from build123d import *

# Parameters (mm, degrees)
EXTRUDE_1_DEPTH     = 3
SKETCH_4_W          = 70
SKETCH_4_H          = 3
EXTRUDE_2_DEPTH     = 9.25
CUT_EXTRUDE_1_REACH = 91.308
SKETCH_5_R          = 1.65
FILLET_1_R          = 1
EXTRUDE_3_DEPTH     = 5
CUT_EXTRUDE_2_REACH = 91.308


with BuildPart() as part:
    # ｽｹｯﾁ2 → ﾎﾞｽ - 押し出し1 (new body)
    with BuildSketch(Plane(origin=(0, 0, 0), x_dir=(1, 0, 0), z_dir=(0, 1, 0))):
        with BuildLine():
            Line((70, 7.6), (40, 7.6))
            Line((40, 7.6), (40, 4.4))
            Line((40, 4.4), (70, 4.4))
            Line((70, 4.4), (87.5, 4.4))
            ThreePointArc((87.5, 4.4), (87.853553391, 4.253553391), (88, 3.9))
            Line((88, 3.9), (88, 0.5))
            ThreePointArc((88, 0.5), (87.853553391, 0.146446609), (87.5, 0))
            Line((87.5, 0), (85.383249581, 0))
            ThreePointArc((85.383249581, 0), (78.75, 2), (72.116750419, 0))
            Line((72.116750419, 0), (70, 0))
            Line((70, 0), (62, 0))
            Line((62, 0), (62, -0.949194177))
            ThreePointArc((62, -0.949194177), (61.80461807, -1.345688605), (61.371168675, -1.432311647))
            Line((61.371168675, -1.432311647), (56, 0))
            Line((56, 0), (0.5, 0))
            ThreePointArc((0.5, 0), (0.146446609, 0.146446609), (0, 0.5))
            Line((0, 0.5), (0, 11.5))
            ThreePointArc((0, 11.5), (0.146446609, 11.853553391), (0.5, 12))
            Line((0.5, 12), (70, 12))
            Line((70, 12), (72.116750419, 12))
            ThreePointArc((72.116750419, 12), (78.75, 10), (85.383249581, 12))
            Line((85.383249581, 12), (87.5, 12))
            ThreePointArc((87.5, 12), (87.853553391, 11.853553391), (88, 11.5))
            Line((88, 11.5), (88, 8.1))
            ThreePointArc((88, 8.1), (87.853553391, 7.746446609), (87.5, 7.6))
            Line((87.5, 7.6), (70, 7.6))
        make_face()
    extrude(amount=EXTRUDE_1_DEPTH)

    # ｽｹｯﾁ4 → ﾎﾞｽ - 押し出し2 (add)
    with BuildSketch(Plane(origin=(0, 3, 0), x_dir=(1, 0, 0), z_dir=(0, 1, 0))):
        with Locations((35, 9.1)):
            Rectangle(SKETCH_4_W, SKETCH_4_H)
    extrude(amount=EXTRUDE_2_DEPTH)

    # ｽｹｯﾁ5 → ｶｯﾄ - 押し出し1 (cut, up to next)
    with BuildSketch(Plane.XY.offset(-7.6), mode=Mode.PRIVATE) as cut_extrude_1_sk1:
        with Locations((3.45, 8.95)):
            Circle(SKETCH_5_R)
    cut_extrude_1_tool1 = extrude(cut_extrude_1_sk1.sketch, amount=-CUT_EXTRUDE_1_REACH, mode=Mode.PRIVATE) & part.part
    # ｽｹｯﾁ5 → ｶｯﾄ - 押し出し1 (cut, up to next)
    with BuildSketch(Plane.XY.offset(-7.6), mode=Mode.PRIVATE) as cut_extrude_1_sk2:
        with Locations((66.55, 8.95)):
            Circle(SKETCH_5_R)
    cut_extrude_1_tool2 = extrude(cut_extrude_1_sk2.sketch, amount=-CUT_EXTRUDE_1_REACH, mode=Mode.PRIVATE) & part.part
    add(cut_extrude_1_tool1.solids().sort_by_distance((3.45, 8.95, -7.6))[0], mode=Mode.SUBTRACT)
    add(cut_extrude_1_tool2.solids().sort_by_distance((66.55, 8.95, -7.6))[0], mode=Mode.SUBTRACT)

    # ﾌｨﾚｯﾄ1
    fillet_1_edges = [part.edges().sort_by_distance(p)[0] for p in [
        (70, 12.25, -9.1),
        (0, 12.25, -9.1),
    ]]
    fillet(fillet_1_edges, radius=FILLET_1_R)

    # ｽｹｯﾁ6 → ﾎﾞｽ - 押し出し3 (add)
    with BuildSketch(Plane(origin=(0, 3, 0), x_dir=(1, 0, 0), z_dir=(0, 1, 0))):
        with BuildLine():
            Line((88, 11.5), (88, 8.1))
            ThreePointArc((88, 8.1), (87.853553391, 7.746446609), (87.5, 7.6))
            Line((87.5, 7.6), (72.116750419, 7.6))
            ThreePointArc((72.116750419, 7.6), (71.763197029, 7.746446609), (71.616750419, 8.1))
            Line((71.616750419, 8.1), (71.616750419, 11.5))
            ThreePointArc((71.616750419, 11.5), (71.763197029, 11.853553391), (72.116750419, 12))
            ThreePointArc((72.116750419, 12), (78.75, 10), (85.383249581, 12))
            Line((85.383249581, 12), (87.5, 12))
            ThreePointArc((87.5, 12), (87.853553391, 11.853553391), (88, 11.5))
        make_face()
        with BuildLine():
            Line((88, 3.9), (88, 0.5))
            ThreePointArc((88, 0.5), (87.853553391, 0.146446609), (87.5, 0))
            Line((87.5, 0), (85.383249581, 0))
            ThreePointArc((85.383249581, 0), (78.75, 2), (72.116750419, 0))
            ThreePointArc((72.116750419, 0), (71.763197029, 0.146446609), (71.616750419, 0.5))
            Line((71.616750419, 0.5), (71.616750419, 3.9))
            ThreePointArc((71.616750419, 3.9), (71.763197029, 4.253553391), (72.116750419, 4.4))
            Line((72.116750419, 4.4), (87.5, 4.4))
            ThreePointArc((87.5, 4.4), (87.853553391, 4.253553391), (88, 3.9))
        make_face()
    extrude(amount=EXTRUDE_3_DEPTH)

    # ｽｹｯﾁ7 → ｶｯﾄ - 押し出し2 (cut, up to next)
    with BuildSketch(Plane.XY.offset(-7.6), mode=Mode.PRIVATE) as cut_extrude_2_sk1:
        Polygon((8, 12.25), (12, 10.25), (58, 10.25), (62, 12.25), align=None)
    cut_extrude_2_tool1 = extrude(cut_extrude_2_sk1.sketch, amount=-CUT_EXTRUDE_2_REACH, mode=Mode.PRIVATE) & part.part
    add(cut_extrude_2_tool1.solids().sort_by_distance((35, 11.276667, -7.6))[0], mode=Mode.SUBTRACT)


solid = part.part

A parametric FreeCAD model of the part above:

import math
import FreeCAD as App
import Part
import Sketcher
from FreeCAD import Vector
Q = App.Units.Quantity


def edges_at(feature, points):
    """Names of the edges that pass closest to the given points."""
    edges = feature.Shape.Edges
    near = lambda p: min(range(len(edges)), key=lambda i: edges[i].distToShape(Part.Vertex(*p))[0])
    return sorted({f"Edge{near(p) + 1}" for p in points})


def add_polygon(sketch, points):
    """Adds a closed chain of lines whose ends are joined by coincident constraints."""
    first, n = sketch.GeometryCount, len(points)
    for a, b in zip(points, points[1:] + points[:1]):
        sketch.addGeometry(Part.LineSegment(App.Vector(*a, 0), App.Vector(*b, 0)), False)
    for i in range(n):
        sketch.addConstraint(Sketcher.Constraint("Coincident", first + i, 2, first + (i + 1) % n, 1))

doc = App.newDocument("Part")
body = doc.addObject("PartDesign::Body", "Body")

sketch1 = body.newObject("Sketcher::SketchObject", "Sketch")
sketch1.AttachmentSupport = (doc.getObject("XZ_Plane"), [""])
sketch1.MapMode = "FlatFace"
sketch1.addGeometry([
    Part.LineSegment(Vector(40, -4.4, 0), Vector(40, -7.6, 0)),
    Part.LineSegment(Vector(40, -7.6, 0), Vector(87.5, -7.6, 0)),
    Part.ArcOfCircle(Part.Circle(Vector(87.5, -8.1, 0), Vector(0, 0, 1), 0.5), math.radians(0), math.radians(90)),
    Part.LineSegment(Vector(88, -8.1, 0), Vector(88, -11.5, 0)),
    Part.ArcOfCircle(Part.Circle(Vector(87.5, -11.5, 0), Vector(0, 0, 1), 0.5), math.radians(-90), math.radians(0)),
    Part.LineSegment(Vector(87.5, -12, 0), Vector(85.38, -12, 0)),
    Part.ArcOfCircle(Part.Circle(Vector(78.75, -22, 0), Vector(0, 0, 1), 12), math.radians(56), math.radians(124)),
    Part.LineSegment(Vector(72.12, -12, 0), Vector(0.5, -12, 0)),
    Part.ArcOfCircle(Part.Circle(Vector(0.5, -11.5, 0), Vector(0, 0, 1), 0.5), math.radians(180), math.radians(270)),
    Part.LineSegment(Vector(0, -11.5, 0), Vector(0, -0.5, 0)),
    Part.ArcOfCircle(Part.Circle(Vector(0.5, -0.5, 0), Vector(0, 0, 1), 0.5), math.radians(90), math.radians(180)),
    Part.LineSegment(Vector(0.5, 0, 0), Vector(56, 0, 0)),
    Part.LineSegment(Vector(56, 0, 0), Vector(61.37, 1.43, 0)),
    Part.ArcOfCircle(Part.Circle(Vector(61.5, 0.95, 0), Vector(0, 0, 1), 0.5), math.radians(0), math.radians(105)),
    Part.LineSegment(Vector(62, 0.95, 0), Vector(62, 0, 0)),
    Part.LineSegment(Vector(62, 0, 0), Vector(72.12, 0, 0)),
    Part.ArcOfCircle(Part.Circle(Vector(78.75, 10, 0), Vector(0, 0, 1), 12), math.radians(-124), math.radians(-56)),
    Part.LineSegment(Vector(85.38, 0, 0), Vector(87.5, 0, 0)),
    Part.ArcOfCircle(Part.Circle(Vector(87.5, -0.5, 0), Vector(0, 0, 1), 0.5), math.radians(0), math.radians(90)),
    Part.LineSegment(Vector(88, -0.5, 0), Vector(88, -3.9, 0)),
    Part.ArcOfCircle(Part.Circle(Vector(87.5, -3.9, 0), Vector(0, 0, 1), 0.5), math.radians(-90), math.radians(0)),
    Part.LineSegment(Vector(87.5, -4.4, 0), Vector(40, -4.4, 0)),
], False)
sketch1.addConstraint([
    Sketcher.Constraint("Coincident", 0, 2, 1, 1),
    Sketcher.Constraint("Tangent", 1, 2, 2, 2),
    Sketcher.Constraint("Tangent", 2, 1, 3, 1),
    Sketcher.Constraint("Tangent", 3, 2, 4, 2),
    Sketcher.Constraint("Tangent", 4, 1, 5, 1),
    Sketcher.Constraint("Coincident", 5, 2, 6, 1),
    Sketcher.Constraint("Coincident", 6, 2, 7, 1),
    Sketcher.Constraint("Tangent", 7, 2, 8, 2),
    Sketcher.Constraint("Tangent", 8, 1, 9, 1),
    Sketcher.Constraint("Tangent", 9, 2, 10, 2),
    Sketcher.Constraint("Tangent", 10, 1, 11, 1),
    Sketcher.Constraint("Coincident", 11, 2, 12, 1),
    Sketcher.Constraint("Tangent", 12, 2, 13, 2),
    Sketcher.Constraint("Tangent", 13, 1, 14, 1),
    Sketcher.Constraint("Coincident", 14, 2, 15, 1),
    Sketcher.Constraint("Coincident", 15, 2, 16, 1),
    Sketcher.Constraint("Coincident", 16, 2, 17, 1),
    Sketcher.Constraint("Tangent", 17, 2, 18, 2),
    Sketcher.Constraint("Tangent", 18, 1, 19, 1),
    Sketcher.Constraint("Tangent", 19, 2, 20, 2),
    Sketcher.Constraint("Tangent", 20, 1, 21, 1),
    Sketcher.Constraint("Coincident", 21, 2, 0, 1),
    Sketcher.Constraint("Vertical", 0),
    Sketcher.Constraint("Horizontal", 1),
    Sketcher.Constraint("Vertical", 3),
    Sketcher.Constraint("Horizontal", 5),
    Sketcher.Constraint("Horizontal", 7),
    Sketcher.Constraint("Vertical", 9),
    Sketcher.Constraint("Horizontal", 11),
    Sketcher.Constraint("Vertical", 14),
    Sketcher.Constraint("Horizontal", 15),
    Sketcher.Constraint("Horizontal", 17),
    Sketcher.Constraint("Vertical", 19),
    Sketcher.Constraint("Horizontal", 21),
    Sketcher.Constraint("Equal", 2, 4),
    Sketcher.Constraint("Equal", 4, 8),
    Sketcher.Constraint("Equal", 8, 10),
    Sketcher.Constraint("Equal", 10, 13),
    Sketcher.Constraint("Equal", 6, 16),
    Sketcher.Constraint("Equal", 13, 18),
    Sketcher.Constraint("Equal", 18, 20),
    Sketcher.Constraint("PointOnObject", 8, 1, -2),
    Sketcher.Constraint("PointOnObject", 10, 1, -1),
    Sketcher.Constraint("PointOnObject", 14, 2, -1),
    Sketcher.Constraint("PointOnObject", 16, 2, -1),
    Sketcher.Constraint("Horizontal", 4, 3, 8, 3),
    Sketcher.Constraint("Vertical", 6, 3, 16, 3),
    Sketcher.Constraint("Vertical", 4, 3, 18, 3),
    Sketcher.Constraint("Vertical", 6, 2, 15, 2),
    Sketcher.Constraint("Equal", 3, 19),
    Sketcher.Constraint("Radius", 6, Q("12 mm")),
    Sketcher.Constraint("Radius", 2, Q("0.5 mm")),
    Sketcher.Constraint("DistanceY", 9, 1, 9, 2, Q("11 mm")),
    Sketcher.Constraint("DistanceX", 1, 1, 1, 2, Q("47.5 mm")),
    Sketcher.Constraint("DistanceX", 11, 1, 11, 2, Q("55.5 mm")),
    Sketcher.Constraint("DistanceY", 0, 2, 0, 1, Q("3.2 mm")),
    Sketcher.Constraint("DistanceY", 6, 3, -1, 1, Q("22 mm")),
    Sketcher.Constraint("DistanceX", -1, 1, 0, 2, Q("40 mm")),
    Sketcher.Constraint("DistanceX", -1, 1, 13, 1, Q("62 mm")),
    Sketcher.Constraint("DistanceX", -1, 1, 6, 3, Q("78.75 mm")),
    Sketcher.Constraint("DistanceY", 14, 2, 14, 1, Q("0.949194 mm")),
])
pad1 = body.newObject("PartDesign::Pad", "Pad")
pad1.Profile = sketch1
pad1.Length = 3
pad1.Reversed = True

sketch2 = body.newObject("Sketcher::SketchObject", "Sketch001")
sketch2.AttachmentSupport = (doc.getObject("XZ_Plane"), [""])
sketch2.MapMode = "FlatFace"
sketch2.AttachmentOffset = App.Placement(Vector(0, 0, -3), App.Rotation())
add_polygon(sketch2, [(0, -10.6), (0, -7.6), (70, -7.6), (70, -10.6)])
sketch2.addConstraint([
    Sketcher.Constraint("Vertical", 0),
    Sketcher.Constraint("Horizontal", 1),
    Sketcher.Constraint("Vertical", 2),
    Sketcher.Constraint("Horizontal", 3),
    Sketcher.Constraint("PointOnObject", 0, 2, -2),
    Sketcher.Constraint("DistanceX", 1, 1, 1, 2, Q("70 mm")),
    Sketcher.Constraint("DistanceY", 0, 1, 0, 2, Q("3 mm")),
    Sketcher.Constraint("DistanceY", 0, 2, -1, 1, Q("7.6 mm")),
])
pad2 = body.newObject("PartDesign::Pad", "Pad001")
pad2.Profile = sketch2
pad2.Length = 9.25
pad2.Reversed = True

sketch3 = body.newObject("Sketcher::SketchObject", "Sketch002")
sketch3.AttachmentSupport = (doc.getObject("XY_Plane"), [""])
sketch3.MapMode = "FlatFace"
sketch3.AttachmentOffset = App.Placement(Vector(0, 0, -7.6), App.Rotation())
sketch3.addGeometry(Part.Circle(Vector(3.5, 8.9, 0), Vector(0, 0, 1), 1.6), False)
sketch3.addConstraint([
    Sketcher.Constraint("Diameter", 0, Q("3.3 mm")),
    Sketcher.Constraint("DistanceX", -1, 1, 0, 3, Q("3.45 mm")),
    Sketcher.Constraint("DistanceY", -1, 1, 0, 3, Q("8.95 mm")),
])
pocket1 = body.newObject("PartDesign::Pocket", "Pocket")
pocket1.Profile = sketch3
pocket1.Type = "UpToFirst"

sketch4 = body.newObject("Sketcher::SketchObject", "Sketch003")
sketch4.AttachmentSupport = (doc.getObject("XY_Plane"), [""])
sketch4.MapMode = "FlatFace"
sketch4.AttachmentOffset = App.Placement(Vector(0, 0, -7.6), App.Rotation())
sketch4.addGeometry(Part.Circle(Vector(66.5, 8.9, 0), Vector(0, 0, 1), 1.6), False)
sketch4.addConstraint([
    Sketcher.Constraint("Diameter", 0, Q("3.3 mm")),
    Sketcher.Constraint("DistanceX", -1, 1, 0, 3, Q("66.55 mm")),
    Sketcher.Constraint("DistanceY", -1, 1, 0, 3, Q("8.95 mm")),
])
pocket2 = body.newObject("PartDesign::Pocket", "Pocket001")
pocket2.Profile = sketch4
pocket2.Type = "UpToFirst"
doc.recompute()

fillet = body.newObject("PartDesign::Fillet", "Fillet")
fillet.Base = (pocket2, edges_at(pocket2, [(70, 12.25, -9.1), (0, 12.25, -9.1)]))
fillet.Radius = 1

sketch5 = body.newObject("Sketcher::SketchObject", "Sketch004")
sketch5.AttachmentSupport = (doc.getObject("XZ_Plane"), [""])
sketch5.MapMode = "FlatFace"
sketch5.AttachmentOffset = App.Placement(Vector(0, 0, -3), App.Rotation())
sketch5.addGeometry([
    Part.LineSegment(Vector(88, -8.1, 0), Vector(88, -11.5, 0)),
    Part.ArcOfCircle(Part.Circle(Vector(87.5, -11.5, 0), Vector(0, 0, 1), 0.5), math.radians(-90), math.radians(0)),
    Part.LineSegment(Vector(87.5, -12, 0), Vector(85.38, -12, 0)),
    Part.ArcOfCircle(Part.Circle(Vector(78.75, -22, 0), Vector(0, 0, 1), 12), math.radians(56), math.radians(124)),
    Part.ArcOfCircle(Part.Circle(Vector(72.12, -11.5, 0), Vector(0, 0, 1), 0.5), math.radians(180), math.radians(270)),
    Part.LineSegment(Vector(71.62, -11.5, 0), Vector(71.62, -8.1, 0)),
    Part.ArcOfCircle(Part.Circle(Vector(72.12, -8.1, 0), Vector(0, 0, 1), 0.5), math.radians(90), math.radians(180)),
    Part.LineSegment(Vector(72.12, -7.6, 0), Vector(87.5, -7.6, 0)),
    Part.ArcOfCircle(Part.Circle(Vector(87.5, -8.1, 0), Vector(0, 0, 1), 0.5), math.radians(0), math.radians(90)),
    Part.LineSegment(Vector(88, -0.5, 0), Vector(88, -3.9, 0)),
    Part.ArcOfCircle(Part.Circle(Vector(87.5, -3.9, 0), Vector(0, 0, 1), 0.5), math.radians(-90), math.radians(0)),
    Part.LineSegment(Vector(87.5, -4.4, 0), Vector(72.12, -4.4, 0)),
    Part.ArcOfCircle(Part.Circle(Vector(72.12, -3.9, 0), Vector(0, 0, 1), 0.5), math.radians(180), math.radians(270)),
    Part.LineSegment(Vector(71.62, -3.9, 0), Vector(71.62, -0.5, 0)),
    Part.ArcOfCircle(Part.Circle(Vector(72.12, -0.5, 0), Vector(0, 0, 1), 0.5), math.radians(90), math.radians(180)),
    Part.ArcOfCircle(Part.Circle(Vector(78.75, 10, 0), Vector(0, 0, 1), 12), math.radians(-124), math.radians(-56)),
    Part.LineSegment(Vector(85.38, 0, 0), Vector(87.5, 0, 0)),
    Part.ArcOfCircle(Part.Circle(Vector(87.5, -0.5, 0), Vector(0, 0, 1), 0.5), math.radians(0), math.radians(90)),
], False)
sketch5.addConstraint([
    Sketcher.Constraint("Tangent", 0, 2, 1, 2),
    Sketcher.Constraint("Tangent", 1, 1, 2, 1),
    Sketcher.Constraint("Coincident", 2, 2, 3, 1),
    Sketcher.Constraint("Coincident", 3, 2, 4, 2),
    Sketcher.Constraint("Tangent", 4, 1, 5, 1),
    Sketcher.Constraint("Tangent", 5, 2, 6, 2),
    Sketcher.Constraint("Tangent", 6, 1, 7, 1),
    Sketcher.Constraint("Tangent", 7, 2, 8, 2),
    Sketcher.Constraint("Tangent", 8, 1, 0, 1),
    Sketcher.Constraint("Tangent", 9, 2, 10, 2),
    Sketcher.Constraint("Tangent", 10, 1, 11, 1),
    Sketcher.Constraint("Tangent", 11, 2, 12, 2),
    Sketcher.Constraint("Tangent", 12, 1, 13, 1),
    Sketcher.Constraint("Tangent", 13, 2, 14, 2),
    Sketcher.Constraint("Coincident", 14, 1, 15, 1),
    Sketcher.Constraint("Coincident", 15, 2, 16, 1),
    Sketcher.Constraint("Tangent", 16, 2, 17, 2),
    Sketcher.Constraint("Tangent", 17, 1, 9, 1),
    Sketcher.Constraint("Vertical", 0),
    Sketcher.Constraint("Horizontal", 2),
    Sketcher.Constraint("Vertical", 5),
    Sketcher.Constraint("Horizontal", 7),
    Sketcher.Constraint("Vertical", 9),
    Sketcher.Constraint("Horizontal", 11),
    Sketcher.Constraint("Vertical", 13),
    Sketcher.Constraint("Horizontal", 16),
    Sketcher.Constraint("Equal", 1, 4),
    Sketcher.Constraint("Equal", 4, 6),
    Sketcher.Constraint("Equal", 6, 8),
    Sketcher.Constraint("Equal", 8, 10),
    Sketcher.Constraint("Equal", 10, 12),
    Sketcher.Constraint("Equal", 12, 14),
    Sketcher.Constraint("Equal", 3, 15),
    Sketcher.Constraint("Equal", 14, 17),
    Sketcher.Constraint("PointOnObject", 14, 1, -1),
    Sketcher.Constraint("PointOnObject", 15, 2, -1),
    Sketcher.Constraint("Horizontal", 1, 3, 4, 3),
    Sketcher.Constraint("Vertical", 8, 3, 10, 3),
    Sketcher.Constraint("Vertical", 6, 3, 12, 3),
    Sketcher.Constraint("Vertical", 3, 3, 15, 3),
    Sketcher.Constraint("Vertical", 14, 3, 3, 2),
    Sketcher.Constraint("Vertical", 11, 2, 14, 1),
    Sketcher.Constraint("Equal", 5, 9),
    Sketcher.Constraint("Radius", 3, Q("12 mm")),
    Sketcher.Constraint("Radius", 1, Q("0.5 mm")),
    Sketcher.Constraint("DistanceY", 0, 2, 0, 1, Q("3.4 mm")),
    Sketcher.Constraint("DistanceY", 3, 3, -1, 1, Q("22 mm")),
    Sketcher.Constraint("DistanceY", -1, 1, 15, 3, Q("10 mm")),
    Sketcher.Constraint("DistanceX", -1, 1, 0, 2, Q("88 mm")),
    Sketcher.Constraint("DistanceX", -1, 1, 3, 3, Q("78.75 mm")),
])
pad3 = body.newObject("PartDesign::Pad", "Pad002")
pad3.Profile = sketch5
pad3.Length = 5
pad3.Reversed = True

sketch6 = body.newObject("Sketcher::SketchObject", "Sketch005")
sketch6.AttachmentSupport = (doc.getObject("XY_Plane"), [""])
sketch6.MapMode = "FlatFace"
sketch6.AttachmentOffset = App.Placement(Vector(0, 0, -7.6), App.Rotation())
add_polygon(sketch6, [(8, 12.2), (12, 10.2), (58, 10.2), (62, 12.2)])
sketch6.addConstraint([
    Sketcher.Constraint("Horizontal", 1),
    Sketcher.Constraint("Horizontal", 3),
    Sketcher.Constraint("Equal", 0, 2),
    Sketcher.Constraint("DistanceX", 1, 1, 1, 2, Q("46 mm")),
    Sketcher.Constraint("DistanceX", 3, 2, 3, 1, Q("54 mm")),
    Sketcher.Constraint("DistanceX", -1, 1, 0, 2, Q("12 mm")),
    Sketcher.Constraint("DistanceY", 1, 2, 2, 2, Q("2 mm")),
    Sketcher.Constraint("DistanceY", -1, 1, 0, 2, Q("10.25 mm")),
])
pocket3 = body.newObject("PartDesign::Pocket", "Pocket002")
pocket3.Profile = sketch6
pocket3.Type = "UpToFirst"

doc.recompute()
